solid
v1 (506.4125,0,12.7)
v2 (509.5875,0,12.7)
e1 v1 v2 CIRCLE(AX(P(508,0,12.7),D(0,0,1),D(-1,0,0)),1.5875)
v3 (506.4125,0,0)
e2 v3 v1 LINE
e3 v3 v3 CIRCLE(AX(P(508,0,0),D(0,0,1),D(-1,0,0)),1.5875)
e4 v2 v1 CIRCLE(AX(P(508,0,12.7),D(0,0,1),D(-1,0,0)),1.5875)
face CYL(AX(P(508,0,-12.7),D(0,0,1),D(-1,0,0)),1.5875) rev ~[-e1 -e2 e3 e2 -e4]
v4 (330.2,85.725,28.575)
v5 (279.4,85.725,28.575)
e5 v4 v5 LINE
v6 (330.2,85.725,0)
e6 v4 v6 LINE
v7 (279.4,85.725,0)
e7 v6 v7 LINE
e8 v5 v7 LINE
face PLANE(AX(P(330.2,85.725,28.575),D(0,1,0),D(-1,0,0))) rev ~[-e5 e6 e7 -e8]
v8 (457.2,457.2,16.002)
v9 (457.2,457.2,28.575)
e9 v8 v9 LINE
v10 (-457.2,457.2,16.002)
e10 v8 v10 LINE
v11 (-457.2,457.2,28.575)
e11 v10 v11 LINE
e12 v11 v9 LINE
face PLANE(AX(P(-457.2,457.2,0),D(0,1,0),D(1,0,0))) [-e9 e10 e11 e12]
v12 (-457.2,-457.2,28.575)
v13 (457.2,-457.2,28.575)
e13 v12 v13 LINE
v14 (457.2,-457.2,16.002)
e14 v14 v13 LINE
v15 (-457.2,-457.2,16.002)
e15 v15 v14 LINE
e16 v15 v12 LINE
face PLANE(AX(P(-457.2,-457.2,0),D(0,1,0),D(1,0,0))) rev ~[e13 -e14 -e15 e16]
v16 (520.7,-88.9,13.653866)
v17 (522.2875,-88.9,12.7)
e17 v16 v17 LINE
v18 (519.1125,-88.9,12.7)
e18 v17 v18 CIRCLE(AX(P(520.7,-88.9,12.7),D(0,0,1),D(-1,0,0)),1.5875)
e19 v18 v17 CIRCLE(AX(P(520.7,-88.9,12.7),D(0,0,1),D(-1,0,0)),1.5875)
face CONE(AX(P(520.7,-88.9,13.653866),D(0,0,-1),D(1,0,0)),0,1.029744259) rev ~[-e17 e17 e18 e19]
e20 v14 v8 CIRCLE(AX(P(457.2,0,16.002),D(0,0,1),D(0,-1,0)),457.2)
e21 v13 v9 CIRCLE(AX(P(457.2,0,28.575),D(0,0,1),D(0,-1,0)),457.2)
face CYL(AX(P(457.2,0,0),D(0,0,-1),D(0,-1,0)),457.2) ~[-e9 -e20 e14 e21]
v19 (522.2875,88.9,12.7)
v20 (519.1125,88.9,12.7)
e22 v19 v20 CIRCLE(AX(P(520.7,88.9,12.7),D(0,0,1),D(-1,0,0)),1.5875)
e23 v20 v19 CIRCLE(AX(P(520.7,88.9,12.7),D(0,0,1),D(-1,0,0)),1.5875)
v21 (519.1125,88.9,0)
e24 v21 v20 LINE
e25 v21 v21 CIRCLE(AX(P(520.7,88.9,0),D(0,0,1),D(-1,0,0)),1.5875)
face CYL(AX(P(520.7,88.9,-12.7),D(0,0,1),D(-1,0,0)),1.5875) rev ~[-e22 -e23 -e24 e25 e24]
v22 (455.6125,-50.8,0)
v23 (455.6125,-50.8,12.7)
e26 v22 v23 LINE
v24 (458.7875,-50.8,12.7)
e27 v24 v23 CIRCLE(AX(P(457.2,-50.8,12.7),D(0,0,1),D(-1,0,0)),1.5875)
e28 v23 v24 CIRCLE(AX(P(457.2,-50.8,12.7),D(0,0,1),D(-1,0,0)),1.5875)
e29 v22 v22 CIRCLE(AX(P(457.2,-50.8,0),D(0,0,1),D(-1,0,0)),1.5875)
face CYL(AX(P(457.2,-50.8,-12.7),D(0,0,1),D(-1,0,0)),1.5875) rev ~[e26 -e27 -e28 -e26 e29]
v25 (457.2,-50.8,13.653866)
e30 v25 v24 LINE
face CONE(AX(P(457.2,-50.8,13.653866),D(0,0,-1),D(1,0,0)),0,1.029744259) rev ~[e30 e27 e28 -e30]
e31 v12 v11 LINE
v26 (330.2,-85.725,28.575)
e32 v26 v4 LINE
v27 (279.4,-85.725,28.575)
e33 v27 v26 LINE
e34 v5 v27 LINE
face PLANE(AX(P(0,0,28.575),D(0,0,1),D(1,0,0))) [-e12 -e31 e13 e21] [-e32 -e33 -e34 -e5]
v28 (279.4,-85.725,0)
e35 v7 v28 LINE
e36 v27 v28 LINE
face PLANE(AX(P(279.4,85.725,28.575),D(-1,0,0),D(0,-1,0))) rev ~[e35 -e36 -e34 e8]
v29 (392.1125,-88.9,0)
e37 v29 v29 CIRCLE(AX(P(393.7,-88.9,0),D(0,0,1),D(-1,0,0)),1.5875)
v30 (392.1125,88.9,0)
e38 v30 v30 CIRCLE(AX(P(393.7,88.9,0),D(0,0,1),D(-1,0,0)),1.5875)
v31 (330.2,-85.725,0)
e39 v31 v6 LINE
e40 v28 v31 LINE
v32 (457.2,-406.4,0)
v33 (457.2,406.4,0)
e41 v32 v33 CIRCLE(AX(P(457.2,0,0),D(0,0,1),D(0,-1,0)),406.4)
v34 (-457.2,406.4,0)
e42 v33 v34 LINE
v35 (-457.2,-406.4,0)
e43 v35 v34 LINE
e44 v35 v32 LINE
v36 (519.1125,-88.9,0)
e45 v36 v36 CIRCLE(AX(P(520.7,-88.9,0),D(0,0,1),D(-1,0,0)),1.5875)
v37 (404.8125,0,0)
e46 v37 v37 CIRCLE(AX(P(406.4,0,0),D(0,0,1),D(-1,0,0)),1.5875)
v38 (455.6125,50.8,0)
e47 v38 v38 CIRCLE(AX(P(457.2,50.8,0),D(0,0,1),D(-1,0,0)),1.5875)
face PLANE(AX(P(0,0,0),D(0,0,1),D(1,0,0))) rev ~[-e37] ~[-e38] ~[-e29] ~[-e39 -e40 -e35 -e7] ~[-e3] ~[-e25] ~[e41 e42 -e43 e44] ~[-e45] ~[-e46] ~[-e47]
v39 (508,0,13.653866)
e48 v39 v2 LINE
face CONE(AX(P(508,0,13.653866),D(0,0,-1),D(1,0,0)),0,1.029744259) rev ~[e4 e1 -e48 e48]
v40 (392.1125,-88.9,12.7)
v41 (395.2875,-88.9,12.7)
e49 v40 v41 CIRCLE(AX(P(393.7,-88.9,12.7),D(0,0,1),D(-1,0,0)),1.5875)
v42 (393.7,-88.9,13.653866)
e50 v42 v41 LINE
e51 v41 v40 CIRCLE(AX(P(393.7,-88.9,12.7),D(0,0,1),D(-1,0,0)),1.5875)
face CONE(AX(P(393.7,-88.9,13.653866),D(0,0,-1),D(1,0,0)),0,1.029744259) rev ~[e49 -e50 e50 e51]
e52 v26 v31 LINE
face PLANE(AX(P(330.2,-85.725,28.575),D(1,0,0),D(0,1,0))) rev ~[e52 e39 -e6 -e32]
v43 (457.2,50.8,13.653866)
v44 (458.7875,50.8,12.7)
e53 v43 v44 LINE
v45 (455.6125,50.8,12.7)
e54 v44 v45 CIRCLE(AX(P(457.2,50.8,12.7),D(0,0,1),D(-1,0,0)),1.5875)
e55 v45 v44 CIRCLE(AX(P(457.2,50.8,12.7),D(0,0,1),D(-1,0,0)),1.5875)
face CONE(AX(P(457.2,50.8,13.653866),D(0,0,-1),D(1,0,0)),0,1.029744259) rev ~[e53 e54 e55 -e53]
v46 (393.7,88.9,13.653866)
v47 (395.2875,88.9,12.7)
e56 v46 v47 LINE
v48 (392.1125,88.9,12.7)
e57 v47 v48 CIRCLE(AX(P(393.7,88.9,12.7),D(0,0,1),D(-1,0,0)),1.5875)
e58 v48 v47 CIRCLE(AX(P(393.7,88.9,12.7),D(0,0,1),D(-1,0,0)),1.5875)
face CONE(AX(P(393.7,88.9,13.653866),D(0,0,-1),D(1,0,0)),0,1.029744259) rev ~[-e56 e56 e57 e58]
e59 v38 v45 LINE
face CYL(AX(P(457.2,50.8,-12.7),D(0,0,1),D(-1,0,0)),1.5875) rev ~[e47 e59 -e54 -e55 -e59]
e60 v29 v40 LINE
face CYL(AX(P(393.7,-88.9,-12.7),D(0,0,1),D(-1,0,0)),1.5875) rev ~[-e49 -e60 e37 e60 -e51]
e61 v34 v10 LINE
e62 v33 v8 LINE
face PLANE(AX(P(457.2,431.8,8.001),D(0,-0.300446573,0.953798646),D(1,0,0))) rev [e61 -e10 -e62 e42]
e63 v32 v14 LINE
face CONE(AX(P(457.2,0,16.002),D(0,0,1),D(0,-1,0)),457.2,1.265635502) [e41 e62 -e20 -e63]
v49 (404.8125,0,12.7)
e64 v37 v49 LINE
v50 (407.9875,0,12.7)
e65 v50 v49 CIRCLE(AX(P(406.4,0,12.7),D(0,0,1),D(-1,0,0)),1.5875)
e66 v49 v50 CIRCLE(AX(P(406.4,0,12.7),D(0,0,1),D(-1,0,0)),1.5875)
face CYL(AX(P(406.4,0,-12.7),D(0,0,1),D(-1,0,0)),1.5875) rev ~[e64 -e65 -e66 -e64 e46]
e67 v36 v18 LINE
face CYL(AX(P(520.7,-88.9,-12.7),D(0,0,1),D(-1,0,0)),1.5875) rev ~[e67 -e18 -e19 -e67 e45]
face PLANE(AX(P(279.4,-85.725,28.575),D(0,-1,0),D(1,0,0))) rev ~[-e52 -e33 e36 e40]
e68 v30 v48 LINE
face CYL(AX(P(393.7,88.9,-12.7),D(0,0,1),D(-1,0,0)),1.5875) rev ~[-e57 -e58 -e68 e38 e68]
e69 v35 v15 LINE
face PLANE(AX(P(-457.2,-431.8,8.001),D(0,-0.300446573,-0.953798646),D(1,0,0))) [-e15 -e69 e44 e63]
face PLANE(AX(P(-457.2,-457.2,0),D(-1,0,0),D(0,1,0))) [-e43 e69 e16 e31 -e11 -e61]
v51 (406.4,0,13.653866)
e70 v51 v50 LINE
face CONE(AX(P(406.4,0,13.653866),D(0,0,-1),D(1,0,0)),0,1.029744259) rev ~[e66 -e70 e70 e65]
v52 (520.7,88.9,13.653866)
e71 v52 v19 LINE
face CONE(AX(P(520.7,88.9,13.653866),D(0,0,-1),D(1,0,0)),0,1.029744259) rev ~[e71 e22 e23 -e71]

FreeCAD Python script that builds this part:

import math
import FreeCAD as App
import Part
import Sketcher
from FreeCAD import Vector
Q = App.Units.Quantity


def edges_at(feature, points):
    """Names of the edges that pass closest to the given points."""
    edges = feature.Shape.Edges
    near = lambda p: min(range(len(edges)), key=lambda i: edges[i].distToShape(Part.Vertex(*p))[0])
    return sorted({f"Edge{near(p) + 1}" for p in points})

doc = App.newDocument("Part")
body = doc.addObject("PartDesign::Body", "Body")

sketch1 = body.newObject("Sketcher::SketchObject", "Sketch")
sketch1.AttachmentSupport = (doc.getObject("XY_Plane"), [""])
sketch1.MapMode = "FlatFace"
sketch1.addGeometry(Part.LineSegment(Vector(-457.2, 457.2, 0), Vector(-457.2, -457.2, 0)), False)
sketch1.addGeometry(Part.LineSegment(Vector(-457.2, -457.2, 0), Vector(457.2, -457.2, 0)), False)
sketch1.addGeometry(Part.ArcOfCircle(Part.Circle(Vector(457.2, 0, 0), Vector(0, 0, 1), 457.2), math.radians(-90), math.radians(90)), False)
sketch1.addGeometry(Part.LineSegment(Vector(457.2, 457.2, 0), Vector(-457.2, 457.2, 0)), False)
sketch1.addConstraint(Sketcher.Constraint("Coincident", 0, 2, 1, 1))
sketch1.addConstraint(Sketcher.Constraint("Tangent", 1, 2, 2, 1))
sketch1.addConstraint(Sketcher.Constraint("Tangent", 2, 2, 3, 1))
sketch1.addConstraint(Sketcher.Constraint("Coincident", 3, 2, 0, 1))
sketch1.addConstraint(Sketcher.Constraint("Vertical", 0))
sketch1.addConstraint(Sketcher.Constraint("Horizontal", 1))
sketch1.addConstraint(Sketcher.Constraint("Horizontal", 3))
sketch1.addConstraint(Sketcher.Constraint("Symmetric", 1, 2, 3, 2, -1, 1))
sketch1.addConstraint(Sketcher.Constraint("Equal", 3, 0))
sketch1.addConstraint(Sketcher.Constraint("Radius", 2, Q("18 in")))
pad1 = body.newObject("PartDesign::Pad", "Pad")
pad1.Profile = sketch1
pad1.Length = Q("1.125 in")

sketch2 = body.newObject("Sketcher::SketchObject", "Sketch001")
sketch2.AttachmentSupport = (doc.getObject("XY_Plane"), [""])
sketch2.MapMode = "FlatFace"
sketch2.AttachmentOffset = App.Placement(Vector(0, 0, 1.125 * 25.4), App.Rotation())
sketch2.addGeometry(Part.LineSegment(Vector(330.2, -85.725, 0), Vector(330.2, 85.725, 0)), False)
sketch2.addGeometry(Part.LineSegment(Vector(330.2, 85.725, 0), Vector(279.4, 85.725, 0)), False)
sketch2.addGeometry(Part.LineSegment(Vector(279.4, 85.725, 0), Vector(279.4, -85.725, 0)), False)
sketch2.addGeometry(Part.LineSegment(Vector(279.4, -85.725, 0), Vector(330.2, -85.725, 0)), False)
sketch2.addConstraint(Sketcher.Constraint("Coincident", 0, 2, 1, 1))
sketch2.addConstraint(Sketcher.Constraint("Coincident", 1, 2, 2, 1))
sketch2.addConstraint(Sketcher.Constraint("Coincident", 2, 2, 3, 1))
sketch2.addConstraint(Sketcher.Constraint("Coincident", 3, 2, 0, 1))
sketch2.addConstraint(Sketcher.Constraint("Vertical", 0))
sketch2.addConstraint(Sketcher.Constraint("Horizontal", 1))
sketch2.addConstraint(Sketcher.Constraint("Vertical", 2))
sketch2.addConstraint(Sketcher.Constraint("Horizontal", 3))
sketch2.addConstraint(Sketcher.Constraint("DistanceX", 1, 2, 1, 1, Q("2 in")))
sketch2.addConstraint(Sketcher.Constraint("DistanceX", -1, 1, 0, 2, Q("13 in")))
sketch2.addConstraint(Sketcher.Constraint("DistanceY", 0, 1, 0, 2, Q("6.75 in")))
sketch2.addConstraint(Sketcher.Constraint("DistanceY", -1, 1, 0, 2, Q("3.375 in")))
pocket1 = body.newObject("PartDesign::Pocket", "Pocket")
pocket1.Profile = sketch2
pocket1.Length = Q("1.25 in")

sketch3 = body.newObject("Sketcher::SketchObject", "Sketch002")
sketch3.AttachmentSupport = (doc.getObject("XY_Plane"), [""])
sketch3.MapMode = "FlatFace"
sketch3.addGeometry(Part.Circle(Vector(393.7, -88.9, 0), Vector(0, 0, 1), 1.5875), False)
sketch3.addGeometry(Part.Circle(Vector(520.7, -88.9, 0), Vector(0, 0, 1), 1.5875), False)
sketch3.addGeometry(Part.Circle(Vector(457.2, -50.8, 0), Vector(0, 0, 1), 1.5875), False)
sketch3.addGeometry(Part.Circle(Vector(406.4, 0, 0), Vector(0, 0, 1), 1.5875), False)
sketch3.addGeometry(Part.Circle(Vector(508, 0, 0), Vector(0, 0, 1), 1.5875), False)
sketch3.addGeometry(Part.Circle(Vector(457.2, 50.8, 0), Vector(0, 0, 1), 1.5875), False)
sketch3.addGeometry(Part.Circle(Vector(393.7, 88.9, 0), Vector(0, 0, 1), 1.5875), False)
sketch3.addGeometry(Part.Circle(Vector(520.7, 88.9, 0), Vector(0, 0, 1), 1.5875), False)
sketch3.addConstraint(Sketcher.Constraint("Equal", 0, 1))
sketch3.addConstraint(Sketcher.Constraint("Equal", 1, 2))
sketch3.addConstraint(Sketcher.Constraint("Equal", 2, 3))
sketch3.addConstraint(Sketcher.Constraint("Equal", 3, 4))
sketch3.addConstraint(Sketcher.Constraint("Equal", 4, 5))
sketch3.addConstraint(Sketcher.Constraint("Equal", 5, 6))
sketch3.addConstraint(Sketcher.Constraint("Equal", 6, 7))
sketch3.addConstraint(Sketcher.Constraint("Symmetric", 2, 3, 5, 3, -1))
sketch3.addConstraint(Sketcher.Constraint("Symmetric", 0, 3, 6, 3, -1))
sketch3.addConstraint(Sketcher.Constraint("Symmetric", 1, 3, 7, 3, -1))
sketch3.addConstraint(Sketcher.Constraint("PointOnObject", 3, 3, -1))
sketch3.addConstraint(Sketcher.Constraint("PointOnObject", 4, 3, -1))
sketch3.addConstraint(Sketcher.Constraint("Horizontal", 0, 3, 1, 3))
sketch3.addConstraint(Sketcher.Constraint("Diameter", 0, Q("0.125 in")))
sketch3.addConstraint(Sketcher.Constraint("DistanceX", -1, 1, 2, 3, Q("18 in")))
sketch3.addConstraint(Sketcher.Constraint("DistanceY", 2, 3, -1, 1, Q("2 in")))
sketch3.addConstraint(Sketcher.Constraint("DistanceX", -1, 1, 3, 3, Q("16 in")))
sketch3.addConstraint(Sketcher.Constraint("DistanceX", -1, 1, 4, 3, Q("20 in")))
sketch3.addConstraint(Sketcher.Constraint("DistanceX", 0, 3, 1, 3, Q("5 in")))
sketch3.addConstraint(Sketcher.Constraint("DistanceY", 0, 3, 6, 3, Q("7 in")))
sketch3.addConstraint(Sketcher.Constraint("DistanceX", -1, 1, 0, 3, Q("15.5 in")))
doc.recompute()
hole = body.newObject("PartDesign::Hole", "Hole")
hole.Profile = sketch3
hole.ThreadType = "None"
hole.Diameter = Q("0.125 in")
hole.DepthType = "Dimension"
hole.Depth = Q("0.5 in")
hole.DrillPoint = "Angled"
hole.DrillPointAngle = 118
hole.Reversed = True
doc.recompute()

chamfer = body.newObject("PartDesign::Chamfer", "Chamfer")
chamfer.Base = (hole, edges_at(hole, [(0, -457.2, 0), (914.4, 0, 0), (0, 457.2, 0)]))
chamfer.ChamferType = "Two distances"
chamfer.Size = Q("2 in")
chamfer.Size2 = Q("0.63 in")

doc.recompute()
